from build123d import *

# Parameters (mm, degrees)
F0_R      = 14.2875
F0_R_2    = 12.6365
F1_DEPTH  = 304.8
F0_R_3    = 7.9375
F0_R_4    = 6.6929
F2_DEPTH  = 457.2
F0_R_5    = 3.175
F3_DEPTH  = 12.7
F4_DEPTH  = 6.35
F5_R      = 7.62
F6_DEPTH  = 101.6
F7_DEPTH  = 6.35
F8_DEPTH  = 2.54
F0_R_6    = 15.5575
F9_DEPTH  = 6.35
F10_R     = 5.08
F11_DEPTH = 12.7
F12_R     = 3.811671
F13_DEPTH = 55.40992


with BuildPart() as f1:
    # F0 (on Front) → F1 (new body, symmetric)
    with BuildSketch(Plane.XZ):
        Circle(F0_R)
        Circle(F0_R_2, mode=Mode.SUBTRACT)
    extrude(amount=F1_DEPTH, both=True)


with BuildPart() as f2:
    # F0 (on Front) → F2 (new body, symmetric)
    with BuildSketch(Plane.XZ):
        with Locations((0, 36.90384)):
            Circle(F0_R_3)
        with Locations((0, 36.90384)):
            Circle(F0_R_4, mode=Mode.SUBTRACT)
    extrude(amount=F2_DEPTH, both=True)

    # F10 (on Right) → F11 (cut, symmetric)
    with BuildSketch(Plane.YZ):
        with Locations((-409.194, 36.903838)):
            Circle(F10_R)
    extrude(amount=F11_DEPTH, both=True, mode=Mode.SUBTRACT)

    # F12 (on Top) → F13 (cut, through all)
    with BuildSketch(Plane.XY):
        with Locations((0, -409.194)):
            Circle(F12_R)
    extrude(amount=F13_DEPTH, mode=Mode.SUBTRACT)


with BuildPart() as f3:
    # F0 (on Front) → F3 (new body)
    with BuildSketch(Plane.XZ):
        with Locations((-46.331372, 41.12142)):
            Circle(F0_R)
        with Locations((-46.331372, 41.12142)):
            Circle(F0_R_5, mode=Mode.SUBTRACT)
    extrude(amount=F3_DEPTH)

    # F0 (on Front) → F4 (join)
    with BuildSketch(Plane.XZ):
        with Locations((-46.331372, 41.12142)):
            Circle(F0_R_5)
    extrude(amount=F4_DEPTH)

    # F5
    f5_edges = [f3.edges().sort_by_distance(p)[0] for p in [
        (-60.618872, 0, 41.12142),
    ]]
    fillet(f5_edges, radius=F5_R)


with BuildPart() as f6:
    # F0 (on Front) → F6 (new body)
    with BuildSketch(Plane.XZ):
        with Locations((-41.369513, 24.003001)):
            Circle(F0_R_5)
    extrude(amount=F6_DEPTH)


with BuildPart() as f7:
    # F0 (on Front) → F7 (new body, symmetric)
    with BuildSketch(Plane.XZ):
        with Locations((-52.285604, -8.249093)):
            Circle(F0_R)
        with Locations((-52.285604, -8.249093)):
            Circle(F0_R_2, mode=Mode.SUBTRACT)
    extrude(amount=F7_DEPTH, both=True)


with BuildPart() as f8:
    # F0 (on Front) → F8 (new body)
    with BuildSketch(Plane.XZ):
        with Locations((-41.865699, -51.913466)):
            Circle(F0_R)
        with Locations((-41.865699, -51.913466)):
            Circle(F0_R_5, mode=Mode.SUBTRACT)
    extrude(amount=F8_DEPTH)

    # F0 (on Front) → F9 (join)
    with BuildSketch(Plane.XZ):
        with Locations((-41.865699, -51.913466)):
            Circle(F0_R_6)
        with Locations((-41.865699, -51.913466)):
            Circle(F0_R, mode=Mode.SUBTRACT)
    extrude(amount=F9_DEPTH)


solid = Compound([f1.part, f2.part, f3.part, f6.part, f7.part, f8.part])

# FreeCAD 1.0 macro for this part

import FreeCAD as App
import Part
import Sketcher

V = App.Vector
Q = App.Units.Quantity


def edges_at(feature, points):
    """Names of the edges that pass closest to the given points."""
    edges = feature.Shape.Edges
    near = lambda p: min(range(len(edges)), key=lambda i: edges[i].distToShape(Part.Vertex(*p))[0])
    return sorted({f"Edge{near(p) + 1}" for p in points})

doc = App.newDocument("Part")
body = doc.addObject("PartDesign::Body", "Body")

# Sketch on XZ plane
sketch1 = body.newObject("Sketcher::SketchObject", "Sketch")
sketch1.AttachmentSupport = (doc.getObject("XZ_Plane"), [""])
sketch1.MapMode = "FlatFace"
sketch1.addGeometry(Part.Circle(V(0, 0, 0), V(0, 0, 1), 14.2875), False)
sketch1.addGeometry(Part.Circle(V(0, 0, 0), V(0, 0, 1), 12.6365), False)
sketch1.addConstraint(Sketcher.Constraint("Coincident", 0, 3, -1, 1))
sketch1.addConstraint(Sketcher.Constraint("Coincident", 1, 3, -1, 1))
sketch1.addConstraint(Sketcher.Constraint("Diameter", 0, Q("1.125 in")))
sketch1.addConstraint(Sketcher.Constraint("Diameter", 1, Q("0.995 in")))
pad1 = body.newObject("PartDesign::Pad", "Pad")
pad1.Profile = sketch1
pad1.Length = Q("24 in")
pad1.Midplane = True
body2 = doc.addObject("PartDesign::Body", "Body001")

# Sketch on XZ plane
sketch2 = body2.newObject("Sketcher::SketchObject", "Sketch001")
sketch2.AttachmentSupport = (doc.getObject("XZ_Plane001"), [""])
sketch2.MapMode = "FlatFace"
sketch2.addGeometry(Part.Circle(V(0, 36.90384, 0), V(0, 0, 1), 7.9375), False)
sketch2.addGeometry(Part.Circle(V(0, 36.90384, 0), V(0, 0, 1), 6.6929), False)
sketch2.addConstraint(Sketcher.Constraint("Coincident", 1, 3, 0, 3))
sketch2.addConstraint(Sketcher.Constraint("PointOnObject", 0, 3, -2))
sketch2.addConstraint(Sketcher.Constraint("Diameter", 0, Q("0.625 in")))
sketch2.addConstraint(Sketcher.Constraint("Diameter", 1, Q("0.527 in")))
sketch2.addConstraint(Sketcher.Constraint("DistanceY", -1, 1, 0, 3, Q("36.90384 mm")))
pad2 = body2.newObject("PartDesign::Pad", "Pad001")
pad2.Profile = sketch2
pad2.Length = Q("36 in")
pad2.Midplane = True

# Sketch on YZ plane
sketch3 = body2.newObject("Sketcher::SketchObject", "Sketch002")
sketch3.AttachmentSupport = (doc.getObject("YZ_Plane001"), [""])
sketch3.MapMode = "FlatFace"
sketch3.addGeometry(Part.Circle(V(-409.194, 36.903838, 0), V(0, 0, 1), 5.08), False)
sketch3.addConstraint(Sketcher.Constraint("Diameter", 0, Q("0.4 in")))
sketch3.addConstraint(Sketcher.Constraint("DistanceX", 0, 3, -1, 1, Q("16.11 in")))
sketch3.addConstraint(Sketcher.Constraint("DistanceY", -1, 1, 0, 3, Q("36.903838 mm")))
pocket1 = body2.newObject("PartDesign::Pocket", "Pocket")
pocket1.Profile = sketch3
pocket1.Length = Q("1 in")
pocket1.Midplane = True

# Sketch on XY plane
sketch4 = body2.newObject("Sketcher::SketchObject", "Sketch003")
sketch4.AttachmentSupport = (doc.getObject("XY_Plane001"), [""])
sketch4.MapMode = "FlatFace"
sketch4.addGeometry(Part.Circle(V(0, -409.194, 0), V(0, 0, 1), 3.811671), False)
sketch4.addConstraint(Sketcher.Constraint("PointOnObject", 0, 3, -2))
sketch4.addConstraint(Sketcher.Constraint("DistanceY", 0, 3, -1, 1, Q("16.11 in")))
sketch4.addConstraint(Sketcher.Constraint("Diameter", 0, Q("7.623342 mm")))
pocket2 = body2.newObject("PartDesign::Pocket", "Pocket001")
pocket2.Profile = sketch4
pocket2.Type = "ThroughAll"
pocket2.Reversed = True
body3 = doc.addObject("PartDesign::Body", "Body002")

# Sketch on XZ plane
sketch5 = body3.newObject("Sketcher::SketchObject", "Sketch004")
sketch5.AttachmentSupport = (doc.getObject("XZ_Plane002"), [""])
sketch5.MapMode = "FlatFace"
sketch5.addGeometry(Part.Circle(V(-46.331372, 41.12142, 0), V(0, 0, 1), 14.2875), False)
sketch5.addGeometry(Part.Circle(V(-46.331372, 41.12142, 0), V(0, 0, 1), 3.175), False)
sketch5.addConstraint(Sketcher.Constraint("Coincident", 1, 3, 0, 3))
sketch5.addConstraint(Sketcher.Constraint("Diameter", 1, Q("0.25 in")))
sketch5.addConstraint(Sketcher.Constraint("Diameter", 0, Q("1.125 in")))
sketch5.addConstraint(Sketcher.Constraint("DistanceY", -1, 1, 0, 3, Q("41.12142 mm")))
sketch5.addConstraint(Sketcher.Constraint("DistanceX", 0, 3, -1, 1, Q("46.331372 mm")))
pad3 = body3.newObject("PartDesign::Pad", "Pad002")
pad3.Profile = sketch5
pad3.Length = Q("0.5 in")

# Sketch on XZ plane
sketch6 = body3.newObject("Sketcher::SketchObject", "Sketch005")
sketch6.AttachmentSupport = (doc.getObject("XZ_Plane002"), [""])
sketch6.MapMode = "FlatFace"
sketch6.addGeometry(Part.Circle(V(-46.331372, 41.12142, 0), V(0, 0, 1), 3.175), False)
sketch6.addConstraint(Sketcher.Constraint("Diameter", 0, Q("0.25 in")))
sketch6.addConstraint(Sketcher.Constraint("DistanceY", -1, 1, 0, 3, Q("41.12142 mm")))
sketch6.addConstraint(Sketcher.Constraint("DistanceX", 0, 3, -1, 1, Q("46.331372 mm")))
pad4 = body3.newObject("PartDesign::Pad", "Pad003")
pad4.Profile = sketch6
pad4.Length = Q("0.25 in")
doc.recompute()

fillet = body3.newObject("PartDesign::Fillet", "Fillet")
fillet.Base = (pad4, edges_at(pad4, [(-60.619, 0, 41.121)]))
fillet.Radius = Q("0.3 in")
body4 = doc.addObject("PartDesign::Body", "Body003")

# Sketch on XZ plane
sketch7 = body4.newObject("Sketcher::SketchObject", "Sketch006")
sketch7.AttachmentSupport = (doc.getObject("XZ_Plane003"), [""])
sketch7.MapMode = "FlatFace"
sketch7.addGeometry(Part.Circle(V(-41.369513, 24.003001, 0), V(0, 0, 1), 3.175), False)
sketch7.addConstraint(Sketcher.Constraint("Diameter", 0, Q("0.25 in")))
sketch7.addConstraint(Sketcher.Constraint("DistanceY", -1, 1, 0, 3, Q("0.945 in")))
sketch7.addConstraint(Sketcher.Constraint("DistanceX", 0, 3, -1, 1, Q("41.369513 mm")))
pad5 = body4.newObject("PartDesign::Pad", "Pad004")
pad5.Profile = sketch7
pad5.Length = Q("4 in")
body5 = doc.addObject("PartDesign::Body", "Body004")

# Sketch on XZ plane
sketch8 = body5.newObject("Sketcher::SketchObject", "Sketch007")
sketch8.AttachmentSupport = (doc.getObject("XZ_Plane004"), [""])
sketch8.MapMode = "FlatFace"
sketch8.addGeometry(Part.Circle(V(-52.285604, -8.249093, 0), V(0, 0, 1), 14.2875), False)
sketch8.addGeometry(Part.Circle(V(-52.285604, -8.249093, 0), V(0, 0, 1), 12.6365), False)
sketch8.addConstraint(Sketcher.Constraint("Coincident", 1, 3, 0, 3))
sketch8.addConstraint(Sketcher.Constraint("Diameter", 0, Q("1.125 in")))
sketch8.addConstraint(Sketcher.Constraint("Diameter", 1, Q("0.995 in")))
sketch8.addConstraint(Sketcher.Constraint("DistanceX", 0, 3, -1, 1, Q("52.285604 mm")))
sketch8.addConstraint(Sketcher.Constraint("DistanceY", 0, 3, -1, 1, Q("8.249093 mm")))
pad6 = body5.newObject("PartDesign::Pad", "Pad005")
pad6.Profile = sketch8
pad6.Length = Q("0.5 in")
pad6.Midplane = True
body6 = doc.addObject("PartDesign::Body", "Body005")

# Sketch on XZ plane
sketch9 = body6.newObject("Sketcher::SketchObject", "Sketch008")
sketch9.AttachmentSupport = (doc.getObject("XZ_Plane005"), [""])
sketch9.MapMode = "FlatFace"
sketch9.addGeometry(Part.Circle(V(-41.865699, -51.913466, 0), V(0, 0, 1), 14.2875), False)
sketch9.addGeometry(Part.Circle(V(-41.865699, -51.913466, 0), V(0, 0, 1), 3.175), False)
sketch9.addConstraint(Sketcher.Constraint("Coincident", 1, 3, 0, 3))
sketch9.addConstraint(Sketcher.Constraint("Diameter", 1, Q("0.25 in")))
sketch9.addConstraint(Sketcher.Constraint("Diameter", 0, Q("1.125 in")))
sketch9.addConstraint(Sketcher.Constraint("DistanceX", 0, 3, -1, 1, Q("41.865699 mm")))
sketch9.addConstraint(Sketcher.Constraint("DistanceY", 0, 3, -1, 1, Q("51.913466 mm")))
pad7 = body6.newObject("PartDesign::Pad", "Pad006")
pad7.Profile = sketch9
pad7.Length = Q("0.1 in")

# Sketch on XZ plane
sketch10 = body6.newObject("Sketcher::SketchObject", "Sketch009")
sketch10.AttachmentSupport = (doc.getObject("XZ_Plane005"), [""])
sketch10.MapMode = "FlatFace"
sketch10.addGeometry(Part.Circle(V(-41.865699, -51.913466, 0), V(0, 0, 1), 15.5575), False)
sketch10.addGeometry(Part.Circle(V(-41.865699, -51.913466, 0), V(0, 0, 1), 14.2875), False)
sketch10.addConstraint(Sketcher.Constraint("Coincident", 1, 3, 0, 3))
sketch10.addConstraint(Sketcher.Constraint("Diameter", 0, Q("1.225 in")))
sketch10.addConstraint(Sketcher.Constraint("Diameter", 1, Q("1.125 in")))
sketch10.addConstraint(Sketcher.Constraint("DistanceX", 0, 3, -1, 1, Q("41.865699 mm")))
sketch10.addConstraint(Sketcher.Constraint("DistanceY", 0, 3, -1, 1, Q("51.913466 mm")))
pad8 = body6.newObject("PartDesign::Pad", "Pad007")
pad8.Profile = sketch10
pad8.Length = Q("0.25 in")

doc.recompute()
